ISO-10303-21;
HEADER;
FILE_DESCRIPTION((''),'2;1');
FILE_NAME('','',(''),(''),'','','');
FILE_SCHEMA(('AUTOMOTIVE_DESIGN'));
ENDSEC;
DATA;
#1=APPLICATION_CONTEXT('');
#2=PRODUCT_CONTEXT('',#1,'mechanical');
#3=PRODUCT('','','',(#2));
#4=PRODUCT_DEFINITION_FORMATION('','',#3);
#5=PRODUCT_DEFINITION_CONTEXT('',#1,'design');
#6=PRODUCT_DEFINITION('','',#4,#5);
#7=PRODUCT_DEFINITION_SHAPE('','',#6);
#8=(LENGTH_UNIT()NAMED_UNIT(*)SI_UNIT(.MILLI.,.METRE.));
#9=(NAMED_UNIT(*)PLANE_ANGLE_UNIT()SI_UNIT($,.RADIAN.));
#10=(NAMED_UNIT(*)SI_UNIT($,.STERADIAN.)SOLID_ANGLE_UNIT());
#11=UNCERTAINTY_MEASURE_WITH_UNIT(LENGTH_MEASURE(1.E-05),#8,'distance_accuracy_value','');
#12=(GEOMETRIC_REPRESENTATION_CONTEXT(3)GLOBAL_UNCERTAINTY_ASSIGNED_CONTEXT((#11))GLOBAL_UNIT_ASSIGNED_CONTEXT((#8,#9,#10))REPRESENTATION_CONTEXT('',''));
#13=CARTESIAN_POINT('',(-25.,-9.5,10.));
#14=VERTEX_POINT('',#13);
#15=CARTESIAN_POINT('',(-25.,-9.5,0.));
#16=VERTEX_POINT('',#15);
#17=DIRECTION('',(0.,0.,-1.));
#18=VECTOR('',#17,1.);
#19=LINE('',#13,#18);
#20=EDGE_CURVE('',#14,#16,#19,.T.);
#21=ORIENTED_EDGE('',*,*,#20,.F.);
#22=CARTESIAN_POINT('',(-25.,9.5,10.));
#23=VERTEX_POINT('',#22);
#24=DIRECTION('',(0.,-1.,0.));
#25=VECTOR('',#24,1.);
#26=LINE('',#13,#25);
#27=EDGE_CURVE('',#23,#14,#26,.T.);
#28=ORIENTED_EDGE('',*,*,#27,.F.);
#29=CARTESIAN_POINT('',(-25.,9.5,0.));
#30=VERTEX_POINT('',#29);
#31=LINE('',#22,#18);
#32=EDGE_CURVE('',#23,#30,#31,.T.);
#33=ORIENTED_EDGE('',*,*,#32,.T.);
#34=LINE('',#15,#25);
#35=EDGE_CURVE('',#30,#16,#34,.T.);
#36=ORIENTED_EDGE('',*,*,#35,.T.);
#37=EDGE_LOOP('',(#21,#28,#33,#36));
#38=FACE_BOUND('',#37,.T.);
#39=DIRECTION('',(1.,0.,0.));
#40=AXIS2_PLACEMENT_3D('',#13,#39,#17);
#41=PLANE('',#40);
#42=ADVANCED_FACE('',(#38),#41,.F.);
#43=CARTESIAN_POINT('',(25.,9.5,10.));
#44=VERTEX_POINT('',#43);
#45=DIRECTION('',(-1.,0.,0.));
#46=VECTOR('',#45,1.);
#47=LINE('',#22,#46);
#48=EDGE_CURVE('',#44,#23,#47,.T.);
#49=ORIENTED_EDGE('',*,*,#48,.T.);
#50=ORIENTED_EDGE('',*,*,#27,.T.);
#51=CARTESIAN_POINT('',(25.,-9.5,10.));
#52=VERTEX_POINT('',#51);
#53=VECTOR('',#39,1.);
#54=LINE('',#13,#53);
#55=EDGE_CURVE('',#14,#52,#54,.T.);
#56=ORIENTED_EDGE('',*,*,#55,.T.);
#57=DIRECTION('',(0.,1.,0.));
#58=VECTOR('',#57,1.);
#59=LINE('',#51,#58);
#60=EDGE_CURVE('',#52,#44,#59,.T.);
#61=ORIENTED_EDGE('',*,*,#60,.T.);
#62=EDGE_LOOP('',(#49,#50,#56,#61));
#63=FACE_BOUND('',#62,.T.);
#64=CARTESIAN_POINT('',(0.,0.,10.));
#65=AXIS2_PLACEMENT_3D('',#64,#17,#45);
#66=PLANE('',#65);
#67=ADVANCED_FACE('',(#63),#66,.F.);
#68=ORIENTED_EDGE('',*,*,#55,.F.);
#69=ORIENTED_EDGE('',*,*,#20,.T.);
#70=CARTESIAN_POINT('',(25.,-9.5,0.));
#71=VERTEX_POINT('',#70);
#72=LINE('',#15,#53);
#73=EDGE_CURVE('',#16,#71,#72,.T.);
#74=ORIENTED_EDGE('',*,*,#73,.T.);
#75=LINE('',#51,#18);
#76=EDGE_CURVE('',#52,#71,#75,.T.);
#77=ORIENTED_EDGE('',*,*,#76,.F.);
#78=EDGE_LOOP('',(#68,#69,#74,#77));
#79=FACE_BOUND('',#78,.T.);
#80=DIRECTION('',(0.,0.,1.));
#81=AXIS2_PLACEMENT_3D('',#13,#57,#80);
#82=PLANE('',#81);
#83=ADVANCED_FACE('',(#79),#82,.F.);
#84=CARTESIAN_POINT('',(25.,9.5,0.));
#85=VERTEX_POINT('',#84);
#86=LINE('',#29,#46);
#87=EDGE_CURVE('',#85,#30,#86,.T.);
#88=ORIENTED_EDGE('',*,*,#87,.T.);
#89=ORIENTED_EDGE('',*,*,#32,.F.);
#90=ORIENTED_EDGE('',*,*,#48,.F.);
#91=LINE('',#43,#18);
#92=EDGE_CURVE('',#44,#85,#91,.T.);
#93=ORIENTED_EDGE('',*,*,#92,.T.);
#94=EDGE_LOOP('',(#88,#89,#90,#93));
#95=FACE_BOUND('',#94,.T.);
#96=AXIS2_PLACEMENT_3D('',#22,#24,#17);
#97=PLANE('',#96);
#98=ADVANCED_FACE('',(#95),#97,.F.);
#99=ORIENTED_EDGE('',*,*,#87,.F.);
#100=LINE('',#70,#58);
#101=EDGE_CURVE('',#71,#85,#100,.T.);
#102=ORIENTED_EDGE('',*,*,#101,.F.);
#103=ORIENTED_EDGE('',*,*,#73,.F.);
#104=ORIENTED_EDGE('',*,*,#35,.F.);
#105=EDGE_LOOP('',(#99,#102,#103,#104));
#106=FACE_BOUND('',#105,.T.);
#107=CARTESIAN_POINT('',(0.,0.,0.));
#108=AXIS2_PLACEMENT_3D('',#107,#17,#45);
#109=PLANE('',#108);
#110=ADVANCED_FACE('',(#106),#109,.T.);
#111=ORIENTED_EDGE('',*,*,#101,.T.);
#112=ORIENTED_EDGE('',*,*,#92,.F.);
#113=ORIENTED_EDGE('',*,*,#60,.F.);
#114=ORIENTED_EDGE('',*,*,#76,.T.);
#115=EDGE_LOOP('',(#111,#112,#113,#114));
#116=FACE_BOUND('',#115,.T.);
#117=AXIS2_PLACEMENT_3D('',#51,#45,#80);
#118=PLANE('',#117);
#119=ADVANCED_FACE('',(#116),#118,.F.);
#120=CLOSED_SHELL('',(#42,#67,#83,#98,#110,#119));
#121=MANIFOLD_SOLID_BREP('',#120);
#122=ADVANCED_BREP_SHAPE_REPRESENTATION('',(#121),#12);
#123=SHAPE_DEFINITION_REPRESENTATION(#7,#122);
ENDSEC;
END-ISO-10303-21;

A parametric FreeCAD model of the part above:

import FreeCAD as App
import Part
import Sketcher
from FreeCAD import Vector
Q = App.Units.Quantity

doc = App.newDocument("Part")
body = doc.addObject("PartDesign::Body", "Body")

sketch1 = body.newObject("Sketcher::SketchObject", "Sketch")
sketch1.AttachmentSupport = (doc.getObject("XY_Plane"), [""])
sketch1.MapMode = "FlatFace"
sketch1.addGeometry(Part.LineSegment(Vector(-25, 9.5, 0), Vector(-25, -9.5, 0)), False)
sketch1.addGeometry(Part.LineSegment(Vector(-25, -9.5, 0), Vector(25, -9.5, 0)), False)
sketch1.addGeometry(Part.LineSegment(Vector(25, -9.5, 0), Vector(25, 9.5, 0)), False)
sketch1.addGeometry(Part.LineSegment(Vector(25, 9.5, 0), Vector(-25, 9.5, 0)), False)
sketch1.addConstraint(Sketcher.Constraint("Coincident", 0, 2, 1, 1))
sketch1.addConstraint(Sketcher.Constraint("Coincident", 1, 2, 2, 1))
sketch1.addConstraint(Sketcher.Constraint("Coincident", 2, 2, 3, 1))
sketch1.addConstraint(Sketcher.Constraint("Coincident", 3, 2, 0, 1))
sketch1.addConstraint(Sketcher.Constraint("Vertical", 0))
sketch1.addConstraint(Sketcher.Constraint("Horizontal", 1))
sketch1.addConstraint(Sketcher.Constraint("Vertical", 2))
sketch1.addConstraint(Sketcher.Constraint("Horizontal", 3))
sketch1.addConstraint(Sketcher.Constraint("Symmetric", 0, 2, 2, 2, -1, 1))
sketch1.addConstraint(Sketcher.Constraint("DistanceX", 1, 1, 1, 2, Q("50 mm")))
sketch1.addConstraint(Sketcher.Constraint("DistanceY", 0, 2, 0, 1, Q("19 mm")))
pad1 = body.newObject("PartDesign::Pad", "Pad")
pad1.Profile = sketch1
pad1.Length = 10

doc.recompute()
